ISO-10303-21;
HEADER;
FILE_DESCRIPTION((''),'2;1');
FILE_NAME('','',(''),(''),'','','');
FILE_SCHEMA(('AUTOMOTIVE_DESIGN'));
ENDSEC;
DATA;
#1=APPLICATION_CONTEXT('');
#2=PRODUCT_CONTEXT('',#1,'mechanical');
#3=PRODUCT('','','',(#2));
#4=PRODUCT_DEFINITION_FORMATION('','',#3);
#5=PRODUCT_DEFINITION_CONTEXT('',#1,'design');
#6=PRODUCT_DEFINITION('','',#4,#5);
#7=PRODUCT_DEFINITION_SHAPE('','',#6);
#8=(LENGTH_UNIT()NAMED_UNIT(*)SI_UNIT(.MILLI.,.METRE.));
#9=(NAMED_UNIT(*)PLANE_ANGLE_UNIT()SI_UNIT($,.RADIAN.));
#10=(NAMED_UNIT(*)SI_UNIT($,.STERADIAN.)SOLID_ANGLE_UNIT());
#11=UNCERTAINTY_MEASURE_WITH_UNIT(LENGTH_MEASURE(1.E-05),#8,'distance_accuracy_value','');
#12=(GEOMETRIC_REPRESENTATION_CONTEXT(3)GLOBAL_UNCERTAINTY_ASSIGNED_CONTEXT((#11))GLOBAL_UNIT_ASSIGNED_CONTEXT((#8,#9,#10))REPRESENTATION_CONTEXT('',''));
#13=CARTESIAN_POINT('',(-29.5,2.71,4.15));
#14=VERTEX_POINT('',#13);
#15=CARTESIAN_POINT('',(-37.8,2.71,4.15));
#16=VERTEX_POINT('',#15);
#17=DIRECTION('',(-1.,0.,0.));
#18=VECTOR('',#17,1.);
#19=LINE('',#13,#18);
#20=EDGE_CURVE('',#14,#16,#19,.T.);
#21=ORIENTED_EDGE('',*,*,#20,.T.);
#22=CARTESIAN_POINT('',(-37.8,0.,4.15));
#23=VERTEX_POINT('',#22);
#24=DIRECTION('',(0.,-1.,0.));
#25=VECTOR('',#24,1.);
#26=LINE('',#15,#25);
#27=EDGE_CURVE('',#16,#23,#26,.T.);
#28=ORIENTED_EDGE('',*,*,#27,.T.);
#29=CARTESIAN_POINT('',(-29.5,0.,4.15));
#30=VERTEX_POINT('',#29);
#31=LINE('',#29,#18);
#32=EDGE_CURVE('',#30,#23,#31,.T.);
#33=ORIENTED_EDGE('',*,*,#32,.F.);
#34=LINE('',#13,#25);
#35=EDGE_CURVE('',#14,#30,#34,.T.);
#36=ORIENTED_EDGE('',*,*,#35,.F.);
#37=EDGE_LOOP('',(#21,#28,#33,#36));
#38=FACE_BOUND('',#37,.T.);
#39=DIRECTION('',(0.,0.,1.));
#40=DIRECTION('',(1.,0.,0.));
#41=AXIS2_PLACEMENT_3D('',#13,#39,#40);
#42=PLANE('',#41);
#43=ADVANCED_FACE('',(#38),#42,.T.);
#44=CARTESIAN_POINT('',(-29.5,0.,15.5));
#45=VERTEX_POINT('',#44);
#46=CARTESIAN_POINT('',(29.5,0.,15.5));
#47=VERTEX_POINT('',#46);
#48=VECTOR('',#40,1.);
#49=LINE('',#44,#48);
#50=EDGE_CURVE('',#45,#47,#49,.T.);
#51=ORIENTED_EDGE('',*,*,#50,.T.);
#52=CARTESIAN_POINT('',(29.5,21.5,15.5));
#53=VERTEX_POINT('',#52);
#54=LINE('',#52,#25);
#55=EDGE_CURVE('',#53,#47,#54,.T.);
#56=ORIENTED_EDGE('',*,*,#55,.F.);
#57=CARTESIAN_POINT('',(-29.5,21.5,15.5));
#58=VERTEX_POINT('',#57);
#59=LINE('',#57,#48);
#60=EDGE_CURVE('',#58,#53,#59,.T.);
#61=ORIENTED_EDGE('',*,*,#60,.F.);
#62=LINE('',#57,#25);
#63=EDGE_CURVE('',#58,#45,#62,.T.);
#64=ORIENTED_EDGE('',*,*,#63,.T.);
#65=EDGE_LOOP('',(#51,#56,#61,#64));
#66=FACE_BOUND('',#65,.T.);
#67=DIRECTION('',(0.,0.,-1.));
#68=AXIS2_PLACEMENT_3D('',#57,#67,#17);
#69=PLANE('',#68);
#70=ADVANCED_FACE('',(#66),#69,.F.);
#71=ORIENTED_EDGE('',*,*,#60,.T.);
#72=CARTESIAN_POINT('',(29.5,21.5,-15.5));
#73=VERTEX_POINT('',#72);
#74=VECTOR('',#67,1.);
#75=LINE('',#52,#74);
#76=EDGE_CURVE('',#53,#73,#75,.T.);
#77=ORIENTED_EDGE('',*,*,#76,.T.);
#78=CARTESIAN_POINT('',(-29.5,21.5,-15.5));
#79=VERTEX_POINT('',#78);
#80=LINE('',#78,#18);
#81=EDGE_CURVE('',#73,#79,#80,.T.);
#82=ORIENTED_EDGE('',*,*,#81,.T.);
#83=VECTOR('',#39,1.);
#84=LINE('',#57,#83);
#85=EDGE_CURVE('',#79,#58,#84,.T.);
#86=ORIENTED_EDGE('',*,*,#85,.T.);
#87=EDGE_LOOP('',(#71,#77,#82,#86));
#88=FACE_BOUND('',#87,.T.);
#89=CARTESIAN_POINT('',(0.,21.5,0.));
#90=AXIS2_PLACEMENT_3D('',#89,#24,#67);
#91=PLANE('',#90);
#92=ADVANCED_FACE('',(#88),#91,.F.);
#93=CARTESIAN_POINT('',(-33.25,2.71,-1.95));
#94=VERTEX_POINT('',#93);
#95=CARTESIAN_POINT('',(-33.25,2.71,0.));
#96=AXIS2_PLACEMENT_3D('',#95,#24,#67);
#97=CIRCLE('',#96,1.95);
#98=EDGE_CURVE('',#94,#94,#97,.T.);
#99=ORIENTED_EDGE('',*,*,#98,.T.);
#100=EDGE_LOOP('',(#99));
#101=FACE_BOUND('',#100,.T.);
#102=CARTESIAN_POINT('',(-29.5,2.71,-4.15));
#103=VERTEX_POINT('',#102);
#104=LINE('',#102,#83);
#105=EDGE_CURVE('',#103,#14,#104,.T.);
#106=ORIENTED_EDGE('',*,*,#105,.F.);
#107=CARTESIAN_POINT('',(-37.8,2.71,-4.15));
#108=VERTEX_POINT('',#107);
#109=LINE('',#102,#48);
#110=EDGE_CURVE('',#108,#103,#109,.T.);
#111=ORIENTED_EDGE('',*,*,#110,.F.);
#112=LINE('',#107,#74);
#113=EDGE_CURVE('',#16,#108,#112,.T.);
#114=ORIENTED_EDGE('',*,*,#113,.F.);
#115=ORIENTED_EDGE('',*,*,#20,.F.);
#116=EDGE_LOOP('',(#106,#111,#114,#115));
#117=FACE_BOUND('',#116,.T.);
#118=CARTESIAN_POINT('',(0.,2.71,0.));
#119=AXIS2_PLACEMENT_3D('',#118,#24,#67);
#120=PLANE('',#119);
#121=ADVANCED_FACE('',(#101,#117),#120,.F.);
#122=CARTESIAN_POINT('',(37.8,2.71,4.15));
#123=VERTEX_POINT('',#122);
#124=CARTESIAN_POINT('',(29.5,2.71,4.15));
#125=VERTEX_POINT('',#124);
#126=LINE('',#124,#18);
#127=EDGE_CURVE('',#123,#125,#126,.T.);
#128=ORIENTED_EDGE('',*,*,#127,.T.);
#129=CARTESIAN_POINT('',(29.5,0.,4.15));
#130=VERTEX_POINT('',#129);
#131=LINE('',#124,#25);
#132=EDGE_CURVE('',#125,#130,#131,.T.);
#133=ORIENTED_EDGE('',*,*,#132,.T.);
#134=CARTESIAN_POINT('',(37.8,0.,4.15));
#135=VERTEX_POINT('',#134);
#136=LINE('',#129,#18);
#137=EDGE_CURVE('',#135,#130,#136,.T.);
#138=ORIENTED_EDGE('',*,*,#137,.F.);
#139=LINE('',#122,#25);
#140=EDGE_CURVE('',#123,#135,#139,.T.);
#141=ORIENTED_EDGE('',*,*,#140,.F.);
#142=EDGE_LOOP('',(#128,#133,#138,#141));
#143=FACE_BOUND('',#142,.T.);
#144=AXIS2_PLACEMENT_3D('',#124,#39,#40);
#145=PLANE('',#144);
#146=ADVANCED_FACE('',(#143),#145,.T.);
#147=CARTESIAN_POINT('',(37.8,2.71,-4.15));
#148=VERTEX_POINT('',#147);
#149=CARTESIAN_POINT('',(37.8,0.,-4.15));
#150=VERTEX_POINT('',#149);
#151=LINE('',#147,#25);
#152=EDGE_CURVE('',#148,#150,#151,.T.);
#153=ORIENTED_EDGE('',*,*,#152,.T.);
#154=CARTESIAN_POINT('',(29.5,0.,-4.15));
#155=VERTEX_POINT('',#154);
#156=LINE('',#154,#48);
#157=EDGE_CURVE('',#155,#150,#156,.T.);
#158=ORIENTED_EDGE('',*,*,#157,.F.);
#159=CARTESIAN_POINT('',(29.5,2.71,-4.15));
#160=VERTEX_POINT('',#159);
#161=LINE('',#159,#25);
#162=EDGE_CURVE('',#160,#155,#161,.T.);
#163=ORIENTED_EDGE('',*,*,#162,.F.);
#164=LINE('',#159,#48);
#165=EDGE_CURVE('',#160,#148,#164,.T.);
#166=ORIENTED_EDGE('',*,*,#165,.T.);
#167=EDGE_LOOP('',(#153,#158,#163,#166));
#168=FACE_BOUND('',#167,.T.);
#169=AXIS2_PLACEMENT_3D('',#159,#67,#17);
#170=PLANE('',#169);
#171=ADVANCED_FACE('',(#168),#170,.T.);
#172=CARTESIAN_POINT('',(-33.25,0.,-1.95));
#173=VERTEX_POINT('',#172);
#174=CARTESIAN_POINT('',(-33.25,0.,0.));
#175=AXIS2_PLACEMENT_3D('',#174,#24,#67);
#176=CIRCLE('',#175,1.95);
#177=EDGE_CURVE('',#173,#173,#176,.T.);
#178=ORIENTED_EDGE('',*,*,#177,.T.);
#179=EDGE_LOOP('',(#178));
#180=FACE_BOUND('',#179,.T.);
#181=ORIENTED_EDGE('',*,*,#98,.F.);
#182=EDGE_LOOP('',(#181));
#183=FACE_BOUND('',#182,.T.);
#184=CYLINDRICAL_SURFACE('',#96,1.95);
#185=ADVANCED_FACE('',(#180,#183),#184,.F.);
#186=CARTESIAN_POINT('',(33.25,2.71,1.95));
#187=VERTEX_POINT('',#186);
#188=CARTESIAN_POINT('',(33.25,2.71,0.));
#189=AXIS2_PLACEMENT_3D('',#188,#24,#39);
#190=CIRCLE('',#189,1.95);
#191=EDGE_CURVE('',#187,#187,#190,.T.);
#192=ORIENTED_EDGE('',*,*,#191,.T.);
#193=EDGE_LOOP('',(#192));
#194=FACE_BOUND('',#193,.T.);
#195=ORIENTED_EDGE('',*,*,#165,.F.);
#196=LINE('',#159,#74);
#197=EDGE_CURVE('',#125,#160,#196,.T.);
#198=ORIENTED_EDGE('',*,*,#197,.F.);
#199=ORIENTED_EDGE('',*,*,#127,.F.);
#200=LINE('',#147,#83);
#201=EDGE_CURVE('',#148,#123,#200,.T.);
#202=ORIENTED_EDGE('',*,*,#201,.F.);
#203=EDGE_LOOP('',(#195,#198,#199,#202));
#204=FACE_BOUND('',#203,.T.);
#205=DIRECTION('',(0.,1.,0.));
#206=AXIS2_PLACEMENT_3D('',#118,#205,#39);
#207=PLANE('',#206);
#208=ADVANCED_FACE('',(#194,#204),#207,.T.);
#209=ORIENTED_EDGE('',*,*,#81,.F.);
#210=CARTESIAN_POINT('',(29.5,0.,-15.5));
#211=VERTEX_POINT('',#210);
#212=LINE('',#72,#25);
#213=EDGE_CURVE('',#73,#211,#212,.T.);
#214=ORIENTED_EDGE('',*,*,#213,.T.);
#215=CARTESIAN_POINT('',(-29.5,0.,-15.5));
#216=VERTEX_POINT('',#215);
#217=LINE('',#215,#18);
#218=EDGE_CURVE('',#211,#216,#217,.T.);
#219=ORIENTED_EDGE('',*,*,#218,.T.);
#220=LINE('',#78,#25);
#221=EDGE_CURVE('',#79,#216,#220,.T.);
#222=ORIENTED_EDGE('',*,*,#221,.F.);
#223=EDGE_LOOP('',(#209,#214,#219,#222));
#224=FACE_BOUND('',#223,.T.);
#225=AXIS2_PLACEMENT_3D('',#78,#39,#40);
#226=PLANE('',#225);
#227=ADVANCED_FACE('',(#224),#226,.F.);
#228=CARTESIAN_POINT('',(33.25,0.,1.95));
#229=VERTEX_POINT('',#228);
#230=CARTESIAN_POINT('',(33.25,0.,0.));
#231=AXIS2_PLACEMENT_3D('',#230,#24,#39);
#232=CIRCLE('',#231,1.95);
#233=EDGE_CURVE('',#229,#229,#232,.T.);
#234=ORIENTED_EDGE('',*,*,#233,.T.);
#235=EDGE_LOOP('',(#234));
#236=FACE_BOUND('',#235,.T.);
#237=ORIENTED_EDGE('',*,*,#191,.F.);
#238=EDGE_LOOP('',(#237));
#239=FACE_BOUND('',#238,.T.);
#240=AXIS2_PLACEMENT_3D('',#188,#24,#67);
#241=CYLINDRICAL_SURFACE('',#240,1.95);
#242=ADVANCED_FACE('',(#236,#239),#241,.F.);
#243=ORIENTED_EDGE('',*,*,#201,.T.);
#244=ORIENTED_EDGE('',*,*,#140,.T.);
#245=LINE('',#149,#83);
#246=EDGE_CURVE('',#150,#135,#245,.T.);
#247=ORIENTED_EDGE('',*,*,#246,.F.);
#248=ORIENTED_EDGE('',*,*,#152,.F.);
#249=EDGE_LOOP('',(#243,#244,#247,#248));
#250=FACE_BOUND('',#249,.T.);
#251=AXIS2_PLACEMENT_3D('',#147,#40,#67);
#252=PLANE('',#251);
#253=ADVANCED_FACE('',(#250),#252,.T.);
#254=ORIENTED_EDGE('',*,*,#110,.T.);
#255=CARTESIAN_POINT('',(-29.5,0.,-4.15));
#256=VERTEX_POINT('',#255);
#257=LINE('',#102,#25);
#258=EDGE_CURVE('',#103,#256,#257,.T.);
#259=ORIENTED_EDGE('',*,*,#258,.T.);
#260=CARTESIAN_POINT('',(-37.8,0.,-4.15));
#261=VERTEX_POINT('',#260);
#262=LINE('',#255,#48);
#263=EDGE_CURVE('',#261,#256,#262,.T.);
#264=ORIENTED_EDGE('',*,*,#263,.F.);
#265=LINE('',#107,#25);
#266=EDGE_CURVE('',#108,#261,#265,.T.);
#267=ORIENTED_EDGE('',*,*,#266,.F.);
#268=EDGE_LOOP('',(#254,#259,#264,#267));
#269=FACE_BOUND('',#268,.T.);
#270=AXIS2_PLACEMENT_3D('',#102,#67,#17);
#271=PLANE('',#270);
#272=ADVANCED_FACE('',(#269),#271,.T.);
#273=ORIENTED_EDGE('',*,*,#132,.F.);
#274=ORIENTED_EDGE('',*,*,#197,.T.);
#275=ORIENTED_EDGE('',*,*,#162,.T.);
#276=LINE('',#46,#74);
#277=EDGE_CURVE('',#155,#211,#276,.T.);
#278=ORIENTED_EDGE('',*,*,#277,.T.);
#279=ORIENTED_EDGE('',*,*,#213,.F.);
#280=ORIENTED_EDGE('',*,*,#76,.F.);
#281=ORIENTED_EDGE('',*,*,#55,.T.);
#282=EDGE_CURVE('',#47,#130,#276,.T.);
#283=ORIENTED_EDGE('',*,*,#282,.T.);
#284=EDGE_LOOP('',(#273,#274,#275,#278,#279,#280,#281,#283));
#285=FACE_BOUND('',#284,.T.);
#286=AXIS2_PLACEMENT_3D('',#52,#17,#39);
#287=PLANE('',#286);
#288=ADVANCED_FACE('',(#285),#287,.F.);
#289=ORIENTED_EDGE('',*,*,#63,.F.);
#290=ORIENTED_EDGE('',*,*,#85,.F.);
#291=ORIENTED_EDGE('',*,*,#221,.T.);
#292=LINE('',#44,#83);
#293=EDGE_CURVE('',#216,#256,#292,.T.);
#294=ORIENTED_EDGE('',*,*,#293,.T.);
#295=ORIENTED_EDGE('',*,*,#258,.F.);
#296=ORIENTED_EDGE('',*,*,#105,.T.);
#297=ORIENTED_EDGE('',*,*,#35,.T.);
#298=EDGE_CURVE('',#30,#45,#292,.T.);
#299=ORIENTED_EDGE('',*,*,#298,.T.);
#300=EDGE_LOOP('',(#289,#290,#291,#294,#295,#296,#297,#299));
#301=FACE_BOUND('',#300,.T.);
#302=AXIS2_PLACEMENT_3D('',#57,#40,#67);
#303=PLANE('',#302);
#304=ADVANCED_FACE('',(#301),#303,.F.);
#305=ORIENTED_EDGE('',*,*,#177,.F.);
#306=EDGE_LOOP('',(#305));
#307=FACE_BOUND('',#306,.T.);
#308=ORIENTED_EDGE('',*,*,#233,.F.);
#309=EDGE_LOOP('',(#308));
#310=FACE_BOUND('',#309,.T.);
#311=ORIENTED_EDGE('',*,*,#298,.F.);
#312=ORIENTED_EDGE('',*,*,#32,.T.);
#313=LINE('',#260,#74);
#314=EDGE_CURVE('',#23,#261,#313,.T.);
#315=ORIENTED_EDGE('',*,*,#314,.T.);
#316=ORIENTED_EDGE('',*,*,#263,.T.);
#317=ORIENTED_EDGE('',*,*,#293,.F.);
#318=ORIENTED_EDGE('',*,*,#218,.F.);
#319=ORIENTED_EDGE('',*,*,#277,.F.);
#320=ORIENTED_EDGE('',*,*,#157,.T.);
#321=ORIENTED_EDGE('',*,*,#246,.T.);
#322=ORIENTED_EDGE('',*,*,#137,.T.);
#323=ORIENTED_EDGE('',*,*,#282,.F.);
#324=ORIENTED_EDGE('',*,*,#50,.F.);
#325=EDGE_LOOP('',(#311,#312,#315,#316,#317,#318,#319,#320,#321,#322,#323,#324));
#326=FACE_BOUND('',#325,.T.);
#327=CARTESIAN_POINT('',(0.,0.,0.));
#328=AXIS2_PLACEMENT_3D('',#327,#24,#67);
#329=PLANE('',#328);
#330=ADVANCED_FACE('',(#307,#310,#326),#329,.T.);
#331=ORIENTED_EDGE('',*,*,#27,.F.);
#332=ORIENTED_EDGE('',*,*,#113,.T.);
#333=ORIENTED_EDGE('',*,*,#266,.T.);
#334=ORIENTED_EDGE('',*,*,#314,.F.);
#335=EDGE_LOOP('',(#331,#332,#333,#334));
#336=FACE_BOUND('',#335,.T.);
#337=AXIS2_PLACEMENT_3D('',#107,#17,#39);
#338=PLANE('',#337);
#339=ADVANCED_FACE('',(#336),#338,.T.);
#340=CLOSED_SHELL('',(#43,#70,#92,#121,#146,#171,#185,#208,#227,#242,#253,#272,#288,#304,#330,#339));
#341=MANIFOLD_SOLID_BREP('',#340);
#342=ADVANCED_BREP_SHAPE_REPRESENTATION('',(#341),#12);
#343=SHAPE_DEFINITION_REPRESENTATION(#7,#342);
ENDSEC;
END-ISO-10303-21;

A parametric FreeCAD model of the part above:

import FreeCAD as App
import Part
import Sketcher

V = App.Vector
Q = App.Units.Quantity


def add_polygon(sketch, points):
    """Adds a closed chain of lines whose ends are joined by coincident constraints."""
    first, n = sketch.GeometryCount, len(points)
    for a, b in zip(points, points[1:] + points[:1]):
        sketch.addGeometry(Part.LineSegment(App.Vector(*a, 0), App.Vector(*b, 0)), False)
    for i in range(n):
        sketch.addConstraint(Sketcher.Constraint("Coincident", first + i, 2, first + (i + 1) % n, 1))

doc = App.newDocument("Part")
body = doc.addObject("PartDesign::Body", "Body")

sketch1 = body.newObject("Sketcher::SketchObject", "Sketch")
sketch1.AttachmentSupport = (doc.getObject("XZ_Plane"), [""])
sketch1.MapMode = "FlatFace"
add_polygon(sketch1, [(-30, -16), (-30, 16), (30, 16), (30, -16)])
sketch1.addConstraint([
    Sketcher.Constraint("Vertical", 0),
    Sketcher.Constraint("Horizontal", 1),
    Sketcher.Constraint("Vertical", 2),
    Sketcher.Constraint("Horizontal", 3),
    Sketcher.Constraint("Symmetric", 0, 2, 2, 2, -1, 1),
    Sketcher.Constraint("DistanceX", 1, 1, 1, 2, Q("59 mm")),
    Sketcher.Constraint("DistanceY", 0, 1, 0, 2, Q("31 mm")),
])
pad1 = body.newObject("PartDesign::Pad", "Pad")
pad1.Profile = sketch1
pad1.Length = 21.5
pad1.Reversed = True

sketch2 = body.newObject("Sketcher::SketchObject", "Sketch001")
sketch2.AttachmentSupport = (doc.getObject("XZ_Plane"), [""])
sketch2.MapMode = "FlatFace"
add_polygon(sketch2, [(-37.8, 4.2), (-37.8, -4.2), (-29.5, -4.2), (-29.5, 4.2)])
sketch2.addGeometry(Part.Circle(V(-33.2, 0, 0), V(0, 0, 1), 1.9), False)
add_polygon(sketch2, [(29.5, 4.2), (29.5, -4.2), (37.8, -4.2), (37.8, 4.2)])
sketch2.addGeometry(Part.Circle(V(33.2, 0, 0), V(0, 0, 1), 1.9), False)
sketch2.addConstraint([
    Sketcher.Constraint("Vertical", 0),
    Sketcher.Constraint("Horizontal", 1),
    Sketcher.Constraint("Vertical", 2),
    Sketcher.Constraint("Horizontal", 3),
    Sketcher.Constraint("Vertical", 5),
    Sketcher.Constraint("Horizontal", 6),
    Sketcher.Constraint("Vertical", 7),
    Sketcher.Constraint("Horizontal", 8),
    Sketcher.Constraint("Equal", 4, 9),
    Sketcher.Constraint("Symmetric", 4, 3, 9, 3, -1, 1),
    Sketcher.Constraint("Symmetric", 2, 2, 5, 2, -1, 1),
    Sketcher.Constraint("Symmetric", 0, 2, 7, 2, -1, 1),
    Sketcher.Constraint("PointOnObject", 4, 3, -1),
    Sketcher.Constraint("Horizontal", 1, 2, 5, 2),
    Sketcher.Constraint("Equal", 8, 0),
    Sketcher.Constraint("Diameter", 4, Q("3.9 mm")),
    Sketcher.Constraint("DistanceX", 1, 1, 1, 2, Q("8.3 mm")),
    Sketcher.Constraint("DistanceX", 1, 2, 5, 2, Q("59 mm")),
    Sketcher.Constraint("DistanceX", 4, 3, 9, 3, Q("66.5 mm")),
])
pad2 = body.newObject("PartDesign::Pad", "Pad001")
pad2.Profile = sketch2
pad2.Length = 2.71
pad2.Reversed = True

doc.recompute()
